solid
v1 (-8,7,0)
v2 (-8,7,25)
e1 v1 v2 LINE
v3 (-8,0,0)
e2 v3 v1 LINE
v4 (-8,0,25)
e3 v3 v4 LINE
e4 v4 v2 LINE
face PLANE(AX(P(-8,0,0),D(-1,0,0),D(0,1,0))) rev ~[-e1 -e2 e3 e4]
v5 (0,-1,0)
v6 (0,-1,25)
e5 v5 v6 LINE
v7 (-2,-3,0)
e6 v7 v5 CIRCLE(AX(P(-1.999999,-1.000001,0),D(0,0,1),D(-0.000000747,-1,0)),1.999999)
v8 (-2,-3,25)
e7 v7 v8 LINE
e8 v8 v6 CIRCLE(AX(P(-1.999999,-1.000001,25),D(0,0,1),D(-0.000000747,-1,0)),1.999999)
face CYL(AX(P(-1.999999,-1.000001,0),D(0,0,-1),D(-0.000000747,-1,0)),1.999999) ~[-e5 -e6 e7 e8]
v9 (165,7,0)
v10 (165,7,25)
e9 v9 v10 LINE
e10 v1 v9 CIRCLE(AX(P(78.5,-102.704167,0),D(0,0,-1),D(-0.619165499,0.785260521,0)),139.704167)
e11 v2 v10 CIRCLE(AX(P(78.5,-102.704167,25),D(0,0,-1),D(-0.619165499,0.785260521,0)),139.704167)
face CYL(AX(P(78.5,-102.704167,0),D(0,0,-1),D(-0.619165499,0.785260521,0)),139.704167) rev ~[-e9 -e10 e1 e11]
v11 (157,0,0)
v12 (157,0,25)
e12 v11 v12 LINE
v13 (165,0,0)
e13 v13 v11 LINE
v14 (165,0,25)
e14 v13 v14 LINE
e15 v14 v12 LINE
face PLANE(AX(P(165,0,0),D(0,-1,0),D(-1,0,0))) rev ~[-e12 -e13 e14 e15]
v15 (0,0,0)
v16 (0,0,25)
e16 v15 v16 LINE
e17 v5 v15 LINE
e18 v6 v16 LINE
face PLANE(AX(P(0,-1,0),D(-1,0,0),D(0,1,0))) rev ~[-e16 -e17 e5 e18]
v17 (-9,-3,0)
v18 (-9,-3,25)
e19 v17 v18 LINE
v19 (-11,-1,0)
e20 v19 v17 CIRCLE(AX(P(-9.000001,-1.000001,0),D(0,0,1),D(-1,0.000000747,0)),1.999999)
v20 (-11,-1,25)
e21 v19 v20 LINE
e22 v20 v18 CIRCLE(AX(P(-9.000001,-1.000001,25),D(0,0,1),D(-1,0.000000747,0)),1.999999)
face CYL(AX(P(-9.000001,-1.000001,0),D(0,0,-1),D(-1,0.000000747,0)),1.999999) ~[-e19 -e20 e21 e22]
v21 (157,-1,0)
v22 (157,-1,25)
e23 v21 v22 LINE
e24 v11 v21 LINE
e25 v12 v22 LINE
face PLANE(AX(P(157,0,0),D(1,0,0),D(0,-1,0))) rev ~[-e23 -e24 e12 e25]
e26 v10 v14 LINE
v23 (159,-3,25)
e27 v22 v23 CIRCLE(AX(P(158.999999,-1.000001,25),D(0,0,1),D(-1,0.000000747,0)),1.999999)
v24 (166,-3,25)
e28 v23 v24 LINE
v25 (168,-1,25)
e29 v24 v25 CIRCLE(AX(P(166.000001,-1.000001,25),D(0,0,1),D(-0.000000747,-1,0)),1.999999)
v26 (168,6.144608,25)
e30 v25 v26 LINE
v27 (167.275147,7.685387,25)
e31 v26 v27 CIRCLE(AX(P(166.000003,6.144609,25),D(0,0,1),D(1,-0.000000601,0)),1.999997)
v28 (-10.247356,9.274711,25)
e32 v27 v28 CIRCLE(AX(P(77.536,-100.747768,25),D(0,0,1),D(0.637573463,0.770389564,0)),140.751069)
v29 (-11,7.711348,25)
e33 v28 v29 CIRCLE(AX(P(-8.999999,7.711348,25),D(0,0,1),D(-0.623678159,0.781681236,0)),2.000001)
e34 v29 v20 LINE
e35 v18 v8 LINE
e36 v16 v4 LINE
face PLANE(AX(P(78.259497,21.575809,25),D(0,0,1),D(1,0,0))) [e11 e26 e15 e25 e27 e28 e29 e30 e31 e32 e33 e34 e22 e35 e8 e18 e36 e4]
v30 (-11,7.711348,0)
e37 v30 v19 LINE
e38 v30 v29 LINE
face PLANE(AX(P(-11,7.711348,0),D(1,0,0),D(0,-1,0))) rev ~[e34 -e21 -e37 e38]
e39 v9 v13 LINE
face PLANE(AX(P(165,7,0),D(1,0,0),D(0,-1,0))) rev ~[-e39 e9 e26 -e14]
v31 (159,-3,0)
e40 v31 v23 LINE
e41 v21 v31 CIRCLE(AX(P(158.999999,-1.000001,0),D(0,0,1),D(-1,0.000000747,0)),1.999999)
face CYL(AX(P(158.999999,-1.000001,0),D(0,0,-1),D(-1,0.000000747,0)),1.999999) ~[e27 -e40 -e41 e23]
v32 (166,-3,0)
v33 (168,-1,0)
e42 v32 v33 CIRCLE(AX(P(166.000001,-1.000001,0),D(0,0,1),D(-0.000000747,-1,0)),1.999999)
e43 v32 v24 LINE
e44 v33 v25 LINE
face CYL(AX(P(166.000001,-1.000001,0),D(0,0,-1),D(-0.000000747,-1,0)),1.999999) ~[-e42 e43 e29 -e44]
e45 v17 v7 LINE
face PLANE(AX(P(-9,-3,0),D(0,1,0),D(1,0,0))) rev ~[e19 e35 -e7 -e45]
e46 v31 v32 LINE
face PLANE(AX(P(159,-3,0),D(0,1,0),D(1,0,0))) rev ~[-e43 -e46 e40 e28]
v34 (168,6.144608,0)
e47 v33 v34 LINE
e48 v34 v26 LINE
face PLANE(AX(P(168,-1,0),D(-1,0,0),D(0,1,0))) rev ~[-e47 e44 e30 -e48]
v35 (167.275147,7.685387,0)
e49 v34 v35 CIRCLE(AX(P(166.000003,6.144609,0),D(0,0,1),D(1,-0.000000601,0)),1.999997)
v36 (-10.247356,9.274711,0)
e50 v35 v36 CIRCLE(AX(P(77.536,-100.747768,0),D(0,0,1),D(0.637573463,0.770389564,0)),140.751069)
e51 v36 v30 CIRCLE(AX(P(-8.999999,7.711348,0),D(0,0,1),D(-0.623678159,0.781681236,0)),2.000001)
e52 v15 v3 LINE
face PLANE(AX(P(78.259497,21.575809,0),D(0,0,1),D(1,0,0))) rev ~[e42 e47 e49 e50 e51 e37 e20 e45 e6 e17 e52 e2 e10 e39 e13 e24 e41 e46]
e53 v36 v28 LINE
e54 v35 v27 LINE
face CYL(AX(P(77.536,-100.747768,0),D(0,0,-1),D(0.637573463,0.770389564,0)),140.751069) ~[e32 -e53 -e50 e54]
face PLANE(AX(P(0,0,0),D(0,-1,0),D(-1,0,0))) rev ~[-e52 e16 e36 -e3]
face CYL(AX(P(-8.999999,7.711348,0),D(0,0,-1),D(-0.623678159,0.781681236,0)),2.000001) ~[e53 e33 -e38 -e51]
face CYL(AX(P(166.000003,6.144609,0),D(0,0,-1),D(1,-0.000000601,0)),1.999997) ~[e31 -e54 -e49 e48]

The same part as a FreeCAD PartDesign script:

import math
import FreeCAD as App
import Part
import Sketcher
Q = App.Units.Quantity

doc = App.newDocument("Part")
body = doc.addObject("PartDesign::Body", "Body")

# Sketch on XY plane
sketch1 = doc.addObject("Sketcher::SketchObject", "Sketch")
body.addObject(sketch1)
sketch1.AttachmentSupport = (doc.XY_Plane, [""])
sketch1.MapMode = "FlatFace"
sketch1.addGeometry(Part.LineSegment(App.Vector(0, -1, 0), App.Vector(0, 0, 0)), False)
sketch1.addGeometry(Part.LineSegment(App.Vector(0, 0, 0), App.Vector(-8, 0, 0)), False)
sketch1.addGeometry(Part.LineSegment(App.Vector(-8, 0, 0), App.Vector(-8, 7, 0)), False)
sketch1.addGeometry(Part.ArcOfCircle(Part.Circle(App.Vector(78.5, -102.704167, 0), App.Vector(0, 0, 1), 139.704167), math.radians(51.74478), math.radians(128.25522)), False)
sketch1.addGeometry(Part.LineSegment(App.Vector(165, 7, 0), App.Vector(165, 0, 0)), False)
sketch1.addGeometry(Part.LineSegment(App.Vector(165, 0, 0), App.Vector(157, 0, 0)), False)
sketch1.addGeometry(Part.LineSegment(App.Vector(157, 0, 0), App.Vector(157, -1, 0)), False)
sketch1.addGeometry(Part.ArcOfCircle(Part.Circle(App.Vector(158.999999, -1.000001, 0), App.Vector(0, 0, 1), 1.999999), math.radians(179.999957), math.radians(270.000043)), False)
sketch1.addGeometry(Part.LineSegment(App.Vector(159, -3, 0), App.Vector(166, -3, 0)), False)
sketch1.addGeometry(Part.ArcOfCircle(Part.Circle(App.Vector(166.000001, -1.000001, 0), App.Vector(0, 0, 1), 1.999999), math.radians(-90.000043), math.radians(0.000043)), False)
sketch1.addGeometry(Part.LineSegment(App.Vector(168, -1, 0), App.Vector(168, 6.144608, 0)), False)
sketch1.addGeometry(Part.ArcOfCircle(Part.Circle(App.Vector(166.000003, 6.144609, 0), App.Vector(0, 0, 1), 1.999997), math.radians(-0.000034), math.radians(50.388918)), False)
sketch1.addGeometry(Part.ArcOfCircle(Part.Circle(App.Vector(77.536, -100.747768, 0), App.Vector(0, 0, 1), 140.751069), math.radians(50.388884), math.radians(128.585228)), False)
sketch1.addGeometry(Part.ArcOfCircle(Part.Circle(App.Vector(-8.999999, 7.711348, 0), App.Vector(0, 0, 1), 2.000001), math.radians(128.585233), math.radians(179.999996)), False)
sketch1.addGeometry(Part.LineSegment(App.Vector(-11, 7.711348, 0), App.Vector(-11, -1, 0)), False)
sketch1.addGeometry(Part.ArcOfCircle(Part.Circle(App.Vector(-9.000001, -1.000001, 0), App.Vector(0, 0, 1), 1.999999), math.radians(179.999957), math.radians(270.000043)), False)
sketch1.addGeometry(Part.LineSegment(App.Vector(-9, -3, 0), App.Vector(-2, -3, 0)), False)
sketch1.addGeometry(Part.ArcOfCircle(Part.Circle(App.Vector(-1.999999, -1.000001, 0), App.Vector(0, 0, 1), 1.999999), math.radians(-90.000043), math.radians(0.000043)), False)
sketch1.addConstraint(Sketcher.Constraint("Coincident", 0, 2, 1, 1))
sketch1.addConstraint(Sketcher.Constraint("Coincident", 1, 2, 2, 1))
sketch1.addConstraint(Sketcher.Constraint("Coincident", 2, 2, 3, 2))
sketch1.addConstraint(Sketcher.Constraint("Coincident", 3, 1, 4, 1))
sketch1.addConstraint(Sketcher.Constraint("Coincident", 4, 2, 5, 1))
sketch1.addConstraint(Sketcher.Constraint("Coincident", 5, 2, 6, 1))
sketch1.addConstraint(Sketcher.Constraint("Tangent", 6, 2, 7, 1))
sketch1.addConstraint(Sketcher.Constraint("Tangent", 7, 2, 8, 1))
sketch1.addConstraint(Sketcher.Constraint("Tangent", 8, 2, 9, 1))
sketch1.addConstraint(Sketcher.Constraint("Tangent", 9, 2, 10, 1))
sketch1.addConstraint(Sketcher.Constraint("Tangent", 10, 2, 11, 1))
sketch1.addConstraint(Sketcher.Constraint("Tangent", 11, 2, 12, 1))
sketch1.addConstraint(Sketcher.Constraint("Tangent", 12, 2, 13, 1))
sketch1.addConstraint(Sketcher.Constraint("Tangent", 13, 2, 14, 1))
sketch1.addConstraint(Sketcher.Constraint("Tangent", 14, 2, 15, 1))
sketch1.addConstraint(Sketcher.Constraint("Tangent", 15, 2, 16, 1))
sketch1.addConstraint(Sketcher.Constraint("Tangent", 16, 2, 17, 1))
sketch1.addConstraint(Sketcher.Constraint("Tangent", 17, 2, 0, 1))
sketch1.addConstraint(Sketcher.Constraint("Vertical", 0))
sketch1.addConstraint(Sketcher.Constraint("Horizontal", 1))
sketch1.addConstraint(Sketcher.Constraint("Vertical", 2))
sketch1.addConstraint(Sketcher.Constraint("Vertical", 4))
sketch1.addConstraint(Sketcher.Constraint("Horizontal", 5))
sketch1.addConstraint(Sketcher.Constraint("Vertical", 6))
sketch1.addConstraint(Sketcher.Constraint("Horizontal", 8))
sketch1.addConstraint(Sketcher.Constraint("Vertical", 10))
sketch1.addConstraint(Sketcher.Constraint("Vertical", 14))
sketch1.addConstraint(Sketcher.Constraint("Horizontal", 16))
sketch1.addConstraint(Sketcher.Constraint("Coincident", 0, 2, -1, 1))
sketch1.addConstraint(Sketcher.Constraint("Equal", 7, 9))
sketch1.addConstraint(Sketcher.Constraint("Equal", 9, 11))
sketch1.addConstraint(Sketcher.Constraint("Equal", 11, 15))
sketch1.addConstraint(Sketcher.Constraint("Equal", 15, 17))
sketch1.addConstraint(Sketcher.Constraint("PointOnObject", 4, 2, -1))
sketch1.addConstraint(Sketcher.Constraint("Horizontal", 9, 3, 15, 3))
sketch1.addConstraint(Sketcher.Constraint("Horizontal", 2, 2, 3, 1))
sketch1.addConstraint(Sketcher.Constraint("Vertical", 13, 3, 15, 2))
sketch1.addConstraint(Sketcher.Constraint("Equal", 1, 5))
sketch1.addConstraint(Sketcher.Constraint("Equal", 8, 16))
sketch1.addConstraint(Sketcher.Constraint("Equal", 16, 2))
sketch1.addConstraint(Sketcher.Constraint("Radius", 7, Q("1.999999 mm")))
sketch1.addConstraint(Sketcher.Constraint("DistanceX", 1, 2, 1, 1, Q("8 mm")))
sketch1.addConstraint(Sketcher.Constraint("DistanceX", 8, 1, 8, 2, Q("7 mm")))
sketch1.addConstraint(Sketcher.Constraint("DistanceY", 0, 1, 0, 2, Q("1 mm")))
sketch1.addConstraint(Sketcher.Constraint("DistanceX", -1, 1, 7, 3, Q("158.999999 mm")))
sketch1.addConstraint(Sketcher.Constraint("Radius", 12, Q("140.751069 mm")))
sketch1.addConstraint(Sketcher.Constraint("DistanceX", -1, 1, 12, 3, Q("77.536 mm")))
sketch1.addConstraint(Sketcher.Constraint("Radius", 3, Q("139.704167 mm")))
sketch1.addConstraint(Sketcher.Constraint("DistanceY", 14, 2, 14, 1, Q("8.711348 mm")))
pad1 = doc.addObject("PartDesign::Pad", "Pad")
body.addObject(pad1)
pad1.Profile = sketch1
pad1.Length = 25

doc.recompute()
